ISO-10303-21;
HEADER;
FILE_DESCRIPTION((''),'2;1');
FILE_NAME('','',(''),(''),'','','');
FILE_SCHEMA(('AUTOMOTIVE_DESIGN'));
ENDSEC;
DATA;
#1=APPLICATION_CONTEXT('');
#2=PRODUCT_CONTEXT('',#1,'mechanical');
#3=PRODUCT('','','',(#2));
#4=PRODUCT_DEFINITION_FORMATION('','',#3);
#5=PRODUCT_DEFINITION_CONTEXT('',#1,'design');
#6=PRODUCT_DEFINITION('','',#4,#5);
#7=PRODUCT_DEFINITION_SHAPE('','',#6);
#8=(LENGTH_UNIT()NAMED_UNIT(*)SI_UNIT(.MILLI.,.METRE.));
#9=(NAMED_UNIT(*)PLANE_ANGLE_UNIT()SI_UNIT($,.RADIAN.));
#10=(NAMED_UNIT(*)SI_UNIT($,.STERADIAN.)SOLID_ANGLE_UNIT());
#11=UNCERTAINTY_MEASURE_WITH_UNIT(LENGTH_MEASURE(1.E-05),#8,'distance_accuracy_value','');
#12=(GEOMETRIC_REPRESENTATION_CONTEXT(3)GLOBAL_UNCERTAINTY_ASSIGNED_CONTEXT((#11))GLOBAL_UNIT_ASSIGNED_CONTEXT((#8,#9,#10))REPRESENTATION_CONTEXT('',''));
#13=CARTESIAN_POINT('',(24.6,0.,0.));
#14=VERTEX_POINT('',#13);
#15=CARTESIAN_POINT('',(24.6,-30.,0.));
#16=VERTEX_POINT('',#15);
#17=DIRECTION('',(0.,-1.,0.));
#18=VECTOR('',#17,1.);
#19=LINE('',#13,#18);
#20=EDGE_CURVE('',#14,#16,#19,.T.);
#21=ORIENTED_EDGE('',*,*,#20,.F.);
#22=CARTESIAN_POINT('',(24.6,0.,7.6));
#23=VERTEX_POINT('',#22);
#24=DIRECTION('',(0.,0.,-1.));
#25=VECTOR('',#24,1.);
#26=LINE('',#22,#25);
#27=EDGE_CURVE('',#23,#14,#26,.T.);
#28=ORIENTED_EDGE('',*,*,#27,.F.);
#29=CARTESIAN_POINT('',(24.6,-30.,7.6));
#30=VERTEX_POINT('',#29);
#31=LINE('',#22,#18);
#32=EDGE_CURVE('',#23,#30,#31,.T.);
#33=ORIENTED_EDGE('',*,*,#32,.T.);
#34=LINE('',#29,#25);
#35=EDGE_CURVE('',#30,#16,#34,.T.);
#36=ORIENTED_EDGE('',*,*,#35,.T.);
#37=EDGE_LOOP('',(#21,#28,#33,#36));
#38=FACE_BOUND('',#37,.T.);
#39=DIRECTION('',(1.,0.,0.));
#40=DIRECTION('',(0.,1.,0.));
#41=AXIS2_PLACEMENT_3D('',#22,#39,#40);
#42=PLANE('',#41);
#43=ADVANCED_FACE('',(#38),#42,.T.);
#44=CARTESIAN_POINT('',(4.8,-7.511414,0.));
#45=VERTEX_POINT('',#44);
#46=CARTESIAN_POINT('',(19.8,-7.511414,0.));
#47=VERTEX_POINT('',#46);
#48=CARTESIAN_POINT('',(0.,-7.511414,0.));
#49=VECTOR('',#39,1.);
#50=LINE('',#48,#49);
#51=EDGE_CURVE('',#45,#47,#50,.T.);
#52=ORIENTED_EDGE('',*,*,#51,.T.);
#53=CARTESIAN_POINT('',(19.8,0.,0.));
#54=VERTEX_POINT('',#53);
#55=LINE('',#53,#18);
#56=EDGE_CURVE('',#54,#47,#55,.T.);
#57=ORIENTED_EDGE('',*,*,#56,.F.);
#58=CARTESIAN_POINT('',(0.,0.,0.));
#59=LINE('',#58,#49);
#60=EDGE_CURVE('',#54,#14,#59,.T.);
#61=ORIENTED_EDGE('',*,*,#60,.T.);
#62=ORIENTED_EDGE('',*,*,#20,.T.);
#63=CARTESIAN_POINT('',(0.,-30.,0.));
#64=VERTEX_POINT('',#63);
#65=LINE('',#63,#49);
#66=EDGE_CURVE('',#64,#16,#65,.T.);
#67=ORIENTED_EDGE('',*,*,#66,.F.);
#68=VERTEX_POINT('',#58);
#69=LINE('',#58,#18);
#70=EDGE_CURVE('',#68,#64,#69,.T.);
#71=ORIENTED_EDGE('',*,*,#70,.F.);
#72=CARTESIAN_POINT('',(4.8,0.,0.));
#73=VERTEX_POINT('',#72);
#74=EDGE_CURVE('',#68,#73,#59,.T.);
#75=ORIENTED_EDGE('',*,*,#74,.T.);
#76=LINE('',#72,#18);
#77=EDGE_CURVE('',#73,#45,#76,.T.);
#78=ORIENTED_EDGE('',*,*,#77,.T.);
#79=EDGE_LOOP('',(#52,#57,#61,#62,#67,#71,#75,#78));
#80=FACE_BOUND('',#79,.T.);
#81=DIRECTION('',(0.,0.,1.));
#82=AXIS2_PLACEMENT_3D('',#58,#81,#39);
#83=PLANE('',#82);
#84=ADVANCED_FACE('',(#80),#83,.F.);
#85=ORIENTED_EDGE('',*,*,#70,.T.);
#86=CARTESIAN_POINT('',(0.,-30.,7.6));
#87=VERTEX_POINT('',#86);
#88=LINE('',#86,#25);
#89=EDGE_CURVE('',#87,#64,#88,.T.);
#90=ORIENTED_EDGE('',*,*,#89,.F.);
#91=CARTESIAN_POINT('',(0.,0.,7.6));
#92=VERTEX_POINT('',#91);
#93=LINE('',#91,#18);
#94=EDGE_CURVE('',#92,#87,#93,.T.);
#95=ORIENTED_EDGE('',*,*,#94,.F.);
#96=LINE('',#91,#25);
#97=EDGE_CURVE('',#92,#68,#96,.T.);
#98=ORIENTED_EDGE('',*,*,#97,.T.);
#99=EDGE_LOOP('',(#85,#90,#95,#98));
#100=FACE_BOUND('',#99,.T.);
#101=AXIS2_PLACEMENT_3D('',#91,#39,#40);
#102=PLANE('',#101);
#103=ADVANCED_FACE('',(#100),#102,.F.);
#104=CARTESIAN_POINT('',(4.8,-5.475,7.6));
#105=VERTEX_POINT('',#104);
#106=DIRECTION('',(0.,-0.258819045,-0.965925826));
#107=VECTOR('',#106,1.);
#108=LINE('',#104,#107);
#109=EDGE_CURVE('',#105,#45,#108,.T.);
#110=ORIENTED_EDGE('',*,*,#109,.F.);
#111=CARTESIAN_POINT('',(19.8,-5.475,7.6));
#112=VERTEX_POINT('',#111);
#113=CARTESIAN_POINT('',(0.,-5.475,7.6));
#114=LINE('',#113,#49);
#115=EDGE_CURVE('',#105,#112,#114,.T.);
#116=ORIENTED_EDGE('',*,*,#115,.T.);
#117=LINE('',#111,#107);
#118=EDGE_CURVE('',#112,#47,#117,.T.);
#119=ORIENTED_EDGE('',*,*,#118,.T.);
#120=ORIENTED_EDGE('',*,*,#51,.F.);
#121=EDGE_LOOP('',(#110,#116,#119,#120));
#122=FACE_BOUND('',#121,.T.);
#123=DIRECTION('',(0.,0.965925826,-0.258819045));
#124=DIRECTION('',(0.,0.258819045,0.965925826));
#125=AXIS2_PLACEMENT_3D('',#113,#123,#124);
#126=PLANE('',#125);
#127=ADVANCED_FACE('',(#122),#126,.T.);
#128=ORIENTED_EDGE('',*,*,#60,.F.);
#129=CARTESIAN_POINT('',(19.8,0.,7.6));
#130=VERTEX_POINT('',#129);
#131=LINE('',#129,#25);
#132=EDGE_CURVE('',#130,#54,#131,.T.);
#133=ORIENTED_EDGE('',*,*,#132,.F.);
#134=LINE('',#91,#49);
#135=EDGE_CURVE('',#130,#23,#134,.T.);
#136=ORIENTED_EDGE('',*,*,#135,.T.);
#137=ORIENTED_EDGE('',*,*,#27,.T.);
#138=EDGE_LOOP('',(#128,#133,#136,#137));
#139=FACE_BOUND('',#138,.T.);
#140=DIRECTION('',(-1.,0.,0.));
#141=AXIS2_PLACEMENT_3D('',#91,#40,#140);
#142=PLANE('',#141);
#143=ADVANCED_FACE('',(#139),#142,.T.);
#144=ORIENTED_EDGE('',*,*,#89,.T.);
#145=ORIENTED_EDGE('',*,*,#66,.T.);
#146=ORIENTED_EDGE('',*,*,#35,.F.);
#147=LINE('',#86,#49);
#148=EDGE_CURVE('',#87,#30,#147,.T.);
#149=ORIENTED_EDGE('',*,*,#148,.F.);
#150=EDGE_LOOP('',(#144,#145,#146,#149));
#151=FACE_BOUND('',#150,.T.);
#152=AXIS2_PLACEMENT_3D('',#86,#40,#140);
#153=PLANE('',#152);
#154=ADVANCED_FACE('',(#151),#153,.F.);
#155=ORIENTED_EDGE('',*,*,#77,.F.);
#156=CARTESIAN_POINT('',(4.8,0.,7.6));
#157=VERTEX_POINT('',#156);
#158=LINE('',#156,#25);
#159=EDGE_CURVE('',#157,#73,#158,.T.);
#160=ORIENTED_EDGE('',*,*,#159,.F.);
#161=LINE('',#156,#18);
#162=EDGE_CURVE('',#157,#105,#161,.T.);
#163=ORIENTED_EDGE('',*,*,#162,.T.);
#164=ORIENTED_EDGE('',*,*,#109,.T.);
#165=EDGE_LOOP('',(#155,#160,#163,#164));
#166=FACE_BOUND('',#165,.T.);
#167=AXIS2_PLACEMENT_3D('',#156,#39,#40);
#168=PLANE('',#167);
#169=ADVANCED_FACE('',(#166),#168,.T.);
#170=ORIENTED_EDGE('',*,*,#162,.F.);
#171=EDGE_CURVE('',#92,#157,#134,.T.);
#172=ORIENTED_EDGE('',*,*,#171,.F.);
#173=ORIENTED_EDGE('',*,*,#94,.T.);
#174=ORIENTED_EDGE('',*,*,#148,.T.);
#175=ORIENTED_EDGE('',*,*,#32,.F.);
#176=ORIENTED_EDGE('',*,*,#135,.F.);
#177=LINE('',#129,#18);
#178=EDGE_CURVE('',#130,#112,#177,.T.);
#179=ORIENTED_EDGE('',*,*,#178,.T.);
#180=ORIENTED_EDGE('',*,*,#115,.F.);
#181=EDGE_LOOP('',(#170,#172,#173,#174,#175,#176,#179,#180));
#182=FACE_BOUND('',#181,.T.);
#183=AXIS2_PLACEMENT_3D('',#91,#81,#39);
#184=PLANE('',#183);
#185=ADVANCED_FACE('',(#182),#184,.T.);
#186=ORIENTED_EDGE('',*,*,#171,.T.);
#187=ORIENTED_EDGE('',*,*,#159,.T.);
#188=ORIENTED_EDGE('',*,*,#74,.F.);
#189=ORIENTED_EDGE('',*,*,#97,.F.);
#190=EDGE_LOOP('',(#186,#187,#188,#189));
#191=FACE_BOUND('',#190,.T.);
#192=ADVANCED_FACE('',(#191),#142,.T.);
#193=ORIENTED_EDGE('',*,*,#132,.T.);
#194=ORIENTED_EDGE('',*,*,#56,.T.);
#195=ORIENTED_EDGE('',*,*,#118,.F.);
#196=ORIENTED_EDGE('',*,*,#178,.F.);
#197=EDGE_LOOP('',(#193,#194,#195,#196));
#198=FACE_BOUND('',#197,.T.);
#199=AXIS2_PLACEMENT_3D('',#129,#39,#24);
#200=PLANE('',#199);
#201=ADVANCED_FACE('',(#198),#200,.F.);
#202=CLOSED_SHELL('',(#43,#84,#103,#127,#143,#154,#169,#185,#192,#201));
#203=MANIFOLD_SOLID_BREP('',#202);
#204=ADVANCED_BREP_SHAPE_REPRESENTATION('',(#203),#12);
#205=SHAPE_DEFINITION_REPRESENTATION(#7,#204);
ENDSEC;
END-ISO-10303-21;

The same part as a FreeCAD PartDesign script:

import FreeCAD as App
import Part
import Sketcher
Q = App.Units.Quantity


def faces_at(feature, points):
    """Names of the faces that lie closest to the given points."""
    faces = feature.Shape.Faces
    near = lambda p: min(range(len(faces)), key=lambda i: faces[i].distToShape(Part.Vertex(*p))[0])
    return sorted({f"Face{near(p) + 1}" for p in points})


def add_polygon(sketch, points):
    """Adds a closed chain of lines whose ends are joined by coincident constraints."""
    first, n = sketch.GeometryCount, len(points)
    for a, b in zip(points, points[1:] + points[:1]):
        sketch.addGeometry(Part.LineSegment(App.Vector(*a, 0), App.Vector(*b, 0)), False)
    for i in range(n):
        sketch.addConstraint(Sketcher.Constraint("Coincident", first + i, 2, first + (i + 1) % n, 1))

doc = App.newDocument("Part")
body = doc.addObject("PartDesign::Body", "Body")

# Sketch on XY plane
sketch1 = doc.addObject("Sketcher::SketchObject", "Sketch")
body.addObject(sketch1)
sketch1.AttachmentSupport = (doc.XY_Plane, [""])
sketch1.MapMode = "FlatFace"
add_polygon(sketch1, [(4.8, 0), (0, 0), (0, -30), (24.6, -30), (24.6, 0), (19.8, 0), (19.8, -5.5), (4.8, -5.5)])  # lines 0-7
sketch1.addConstraint([
    Sketcher.Constraint("Horizontal", 0),
    Sketcher.Constraint("Vertical", 1),
    Sketcher.Constraint("Horizontal", 2),
    Sketcher.Constraint("Vertical", 3),
    Sketcher.Constraint("Horizontal", 4),
    Sketcher.Constraint("Vertical", 5),
    Sketcher.Constraint("Horizontal", 6),
    Sketcher.Constraint("Vertical", 7),
    Sketcher.Constraint("Coincident", 0, 2, -1, 1),
    Sketcher.Constraint("PointOnObject", 3, 2, -1),
    Sketcher.Constraint("Equal", 0, 4),
    Sketcher.Constraint("DistanceX", 6, 2, 6, 1, Q("15 mm")),
    Sketcher.Constraint("DistanceY", 1, 2, 1, 1, Q("30 mm")),
    Sketcher.Constraint("DistanceX", 0, 2, 0, 1, Q("4.8 mm")),
    Sketcher.Constraint("DistanceY", 5, 2, 5, 1, Q("5.475 mm")),
])
pad1 = doc.addObject("PartDesign::Pad", "Pad")
body.addObject(pad1)
pad1.Profile = sketch1
pad1.Length = 7.6
doc.recompute()

datumplane = doc.addObject("PartDesign::Plane", "DatumPlane")
body.addObject(datumplane)
datumplane.AttachmentSupport = (doc.XY_Plane, [""])
datumplane.MapMode = "FlatFace"
datumplane.AttachmentOffset = App.Placement(App.Vector(0, 0, 7.6), App.Rotation())
draft = doc.addObject("PartDesign::Draft", "Draft")
body.addObject(draft)
draft.Base = (pad1, faces_at(pad1, [(12.3, -5.475, 3.8)]))
draft.NeutralPlane = (datumplane, [""])
draft.Angle = 15
draft.Reversed = True

doc.recompute()
